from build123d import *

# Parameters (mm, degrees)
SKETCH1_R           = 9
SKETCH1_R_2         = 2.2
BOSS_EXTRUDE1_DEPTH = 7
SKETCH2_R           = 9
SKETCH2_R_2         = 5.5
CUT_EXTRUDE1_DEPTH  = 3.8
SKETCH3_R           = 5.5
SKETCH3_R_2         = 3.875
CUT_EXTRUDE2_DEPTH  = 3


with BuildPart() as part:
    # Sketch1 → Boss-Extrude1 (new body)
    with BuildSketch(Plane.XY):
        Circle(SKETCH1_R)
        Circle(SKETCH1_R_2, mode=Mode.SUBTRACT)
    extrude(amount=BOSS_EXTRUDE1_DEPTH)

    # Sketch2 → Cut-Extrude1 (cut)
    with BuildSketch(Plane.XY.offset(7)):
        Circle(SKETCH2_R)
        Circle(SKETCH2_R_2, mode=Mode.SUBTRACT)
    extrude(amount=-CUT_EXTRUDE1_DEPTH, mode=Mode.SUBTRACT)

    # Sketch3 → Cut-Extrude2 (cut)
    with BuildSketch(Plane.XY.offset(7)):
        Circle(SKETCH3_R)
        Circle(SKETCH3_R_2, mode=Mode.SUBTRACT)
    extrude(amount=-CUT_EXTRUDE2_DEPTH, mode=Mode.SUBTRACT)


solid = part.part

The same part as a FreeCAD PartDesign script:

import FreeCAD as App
import Part
import Sketcher
Q = App.Units.Quantity

doc = App.newDocument("Part")
body = doc.addObject("PartDesign::Body", "Body")

# Sketch on XY plane
sketch1 = doc.addObject("Sketcher::SketchObject", "Sketch")
body.addObject(sketch1)
sketch1.AttachmentSupport = (doc.XY_Plane, [""])
sketch1.MapMode = "FlatFace"
sketch1.addGeometry(Part.Circle(App.Vector(0, 0, 0), App.Vector(0, 0, 1), 9), False)
sketch1.addGeometry(Part.Circle(App.Vector(0, 0, 0), App.Vector(0, 0, 1), 2.2), False)
sketch1.addConstraint(Sketcher.Constraint("Coincident", 0, 3, -1, 1))
sketch1.addConstraint(Sketcher.Constraint("Coincident", 1, 3, -1, 1))
sketch1.addConstraint(Sketcher.Constraint("Diameter", 0, Q("18 mm")))
sketch1.addConstraint(Sketcher.Constraint("Diameter", 1, Q("4.4 mm")))
pad1 = doc.addObject("PartDesign::Pad", "Pad")
body.addObject(pad1)
pad1.Profile = sketch1
pad1.Length = 7

# Sketch on XY plane
sketch2 = doc.addObject("Sketcher::SketchObject", "Sketch001")
body.addObject(sketch2)
sketch2.AttachmentSupport = (doc.XY_Plane, [""])
sketch2.MapMode = "FlatFace"
sketch2.AttachmentOffset = App.Placement(App.Vector(0, 0, 7), App.Rotation())
sketch2.addGeometry(Part.Circle(App.Vector(0, 0, 0), App.Vector(0, 0, 1), 9), False)
sketch2.addGeometry(Part.Circle(App.Vector(0, 0, 0), App.Vector(0, 0, 1), 6), False)
sketch2.addConstraint(Sketcher.Constraint("Coincident", 0, 3, -1, 1))
sketch2.addConstraint(Sketcher.Constraint("Coincident", 1, 3, -1, 1))
sketch2.addConstraint(Sketcher.Constraint("Diameter", 0, Q("18 mm")))
sketch2.addConstraint(Sketcher.Constraint("Diameter", 1, Q("11 mm")))
pocket1 = doc.addObject("PartDesign::Pocket", "Pocket")
body.addObject(pocket1)
pocket1.Profile = sketch2
pocket1.Length = 3.8

# Sketch on XY plane
sketch3 = doc.addObject("Sketcher::SketchObject", "Sketch002")
body.addObject(sketch3)
sketch3.AttachmentSupport = (doc.XY_Plane, [""])
sketch3.MapMode = "FlatFace"
sketch3.AttachmentOffset = App.Placement(App.Vector(0, 0, 7), App.Rotation())
sketch3.addGeometry(Part.Circle(App.Vector(0, 0, 0), App.Vector(0, 0, 1), 5.5), False)
sketch3.addGeometry(Part.Circle(App.Vector(0, 0, 0), App.Vector(0, 0, 1), 3.9), False)
sketch3.addConstraint(Sketcher.Constraint("Coincident", 0, 3, -1, 1))
sketch3.addConstraint(Sketcher.Constraint("Coincident", 1, 3, -1, 1))
sketch3.addConstraint(Sketcher.Constraint("Diameter", 0, Q("11 mm")))
sketch3.addConstraint(Sketcher.Constraint("Diameter", 1, Q("7.75 mm")))
pocket2 = doc.addObject("PartDesign::Pocket", "Pocket001")
body.addObject(pocket2)
pocket2.Profile = sketch3
pocket2.Length = 3

doc.recompute()
